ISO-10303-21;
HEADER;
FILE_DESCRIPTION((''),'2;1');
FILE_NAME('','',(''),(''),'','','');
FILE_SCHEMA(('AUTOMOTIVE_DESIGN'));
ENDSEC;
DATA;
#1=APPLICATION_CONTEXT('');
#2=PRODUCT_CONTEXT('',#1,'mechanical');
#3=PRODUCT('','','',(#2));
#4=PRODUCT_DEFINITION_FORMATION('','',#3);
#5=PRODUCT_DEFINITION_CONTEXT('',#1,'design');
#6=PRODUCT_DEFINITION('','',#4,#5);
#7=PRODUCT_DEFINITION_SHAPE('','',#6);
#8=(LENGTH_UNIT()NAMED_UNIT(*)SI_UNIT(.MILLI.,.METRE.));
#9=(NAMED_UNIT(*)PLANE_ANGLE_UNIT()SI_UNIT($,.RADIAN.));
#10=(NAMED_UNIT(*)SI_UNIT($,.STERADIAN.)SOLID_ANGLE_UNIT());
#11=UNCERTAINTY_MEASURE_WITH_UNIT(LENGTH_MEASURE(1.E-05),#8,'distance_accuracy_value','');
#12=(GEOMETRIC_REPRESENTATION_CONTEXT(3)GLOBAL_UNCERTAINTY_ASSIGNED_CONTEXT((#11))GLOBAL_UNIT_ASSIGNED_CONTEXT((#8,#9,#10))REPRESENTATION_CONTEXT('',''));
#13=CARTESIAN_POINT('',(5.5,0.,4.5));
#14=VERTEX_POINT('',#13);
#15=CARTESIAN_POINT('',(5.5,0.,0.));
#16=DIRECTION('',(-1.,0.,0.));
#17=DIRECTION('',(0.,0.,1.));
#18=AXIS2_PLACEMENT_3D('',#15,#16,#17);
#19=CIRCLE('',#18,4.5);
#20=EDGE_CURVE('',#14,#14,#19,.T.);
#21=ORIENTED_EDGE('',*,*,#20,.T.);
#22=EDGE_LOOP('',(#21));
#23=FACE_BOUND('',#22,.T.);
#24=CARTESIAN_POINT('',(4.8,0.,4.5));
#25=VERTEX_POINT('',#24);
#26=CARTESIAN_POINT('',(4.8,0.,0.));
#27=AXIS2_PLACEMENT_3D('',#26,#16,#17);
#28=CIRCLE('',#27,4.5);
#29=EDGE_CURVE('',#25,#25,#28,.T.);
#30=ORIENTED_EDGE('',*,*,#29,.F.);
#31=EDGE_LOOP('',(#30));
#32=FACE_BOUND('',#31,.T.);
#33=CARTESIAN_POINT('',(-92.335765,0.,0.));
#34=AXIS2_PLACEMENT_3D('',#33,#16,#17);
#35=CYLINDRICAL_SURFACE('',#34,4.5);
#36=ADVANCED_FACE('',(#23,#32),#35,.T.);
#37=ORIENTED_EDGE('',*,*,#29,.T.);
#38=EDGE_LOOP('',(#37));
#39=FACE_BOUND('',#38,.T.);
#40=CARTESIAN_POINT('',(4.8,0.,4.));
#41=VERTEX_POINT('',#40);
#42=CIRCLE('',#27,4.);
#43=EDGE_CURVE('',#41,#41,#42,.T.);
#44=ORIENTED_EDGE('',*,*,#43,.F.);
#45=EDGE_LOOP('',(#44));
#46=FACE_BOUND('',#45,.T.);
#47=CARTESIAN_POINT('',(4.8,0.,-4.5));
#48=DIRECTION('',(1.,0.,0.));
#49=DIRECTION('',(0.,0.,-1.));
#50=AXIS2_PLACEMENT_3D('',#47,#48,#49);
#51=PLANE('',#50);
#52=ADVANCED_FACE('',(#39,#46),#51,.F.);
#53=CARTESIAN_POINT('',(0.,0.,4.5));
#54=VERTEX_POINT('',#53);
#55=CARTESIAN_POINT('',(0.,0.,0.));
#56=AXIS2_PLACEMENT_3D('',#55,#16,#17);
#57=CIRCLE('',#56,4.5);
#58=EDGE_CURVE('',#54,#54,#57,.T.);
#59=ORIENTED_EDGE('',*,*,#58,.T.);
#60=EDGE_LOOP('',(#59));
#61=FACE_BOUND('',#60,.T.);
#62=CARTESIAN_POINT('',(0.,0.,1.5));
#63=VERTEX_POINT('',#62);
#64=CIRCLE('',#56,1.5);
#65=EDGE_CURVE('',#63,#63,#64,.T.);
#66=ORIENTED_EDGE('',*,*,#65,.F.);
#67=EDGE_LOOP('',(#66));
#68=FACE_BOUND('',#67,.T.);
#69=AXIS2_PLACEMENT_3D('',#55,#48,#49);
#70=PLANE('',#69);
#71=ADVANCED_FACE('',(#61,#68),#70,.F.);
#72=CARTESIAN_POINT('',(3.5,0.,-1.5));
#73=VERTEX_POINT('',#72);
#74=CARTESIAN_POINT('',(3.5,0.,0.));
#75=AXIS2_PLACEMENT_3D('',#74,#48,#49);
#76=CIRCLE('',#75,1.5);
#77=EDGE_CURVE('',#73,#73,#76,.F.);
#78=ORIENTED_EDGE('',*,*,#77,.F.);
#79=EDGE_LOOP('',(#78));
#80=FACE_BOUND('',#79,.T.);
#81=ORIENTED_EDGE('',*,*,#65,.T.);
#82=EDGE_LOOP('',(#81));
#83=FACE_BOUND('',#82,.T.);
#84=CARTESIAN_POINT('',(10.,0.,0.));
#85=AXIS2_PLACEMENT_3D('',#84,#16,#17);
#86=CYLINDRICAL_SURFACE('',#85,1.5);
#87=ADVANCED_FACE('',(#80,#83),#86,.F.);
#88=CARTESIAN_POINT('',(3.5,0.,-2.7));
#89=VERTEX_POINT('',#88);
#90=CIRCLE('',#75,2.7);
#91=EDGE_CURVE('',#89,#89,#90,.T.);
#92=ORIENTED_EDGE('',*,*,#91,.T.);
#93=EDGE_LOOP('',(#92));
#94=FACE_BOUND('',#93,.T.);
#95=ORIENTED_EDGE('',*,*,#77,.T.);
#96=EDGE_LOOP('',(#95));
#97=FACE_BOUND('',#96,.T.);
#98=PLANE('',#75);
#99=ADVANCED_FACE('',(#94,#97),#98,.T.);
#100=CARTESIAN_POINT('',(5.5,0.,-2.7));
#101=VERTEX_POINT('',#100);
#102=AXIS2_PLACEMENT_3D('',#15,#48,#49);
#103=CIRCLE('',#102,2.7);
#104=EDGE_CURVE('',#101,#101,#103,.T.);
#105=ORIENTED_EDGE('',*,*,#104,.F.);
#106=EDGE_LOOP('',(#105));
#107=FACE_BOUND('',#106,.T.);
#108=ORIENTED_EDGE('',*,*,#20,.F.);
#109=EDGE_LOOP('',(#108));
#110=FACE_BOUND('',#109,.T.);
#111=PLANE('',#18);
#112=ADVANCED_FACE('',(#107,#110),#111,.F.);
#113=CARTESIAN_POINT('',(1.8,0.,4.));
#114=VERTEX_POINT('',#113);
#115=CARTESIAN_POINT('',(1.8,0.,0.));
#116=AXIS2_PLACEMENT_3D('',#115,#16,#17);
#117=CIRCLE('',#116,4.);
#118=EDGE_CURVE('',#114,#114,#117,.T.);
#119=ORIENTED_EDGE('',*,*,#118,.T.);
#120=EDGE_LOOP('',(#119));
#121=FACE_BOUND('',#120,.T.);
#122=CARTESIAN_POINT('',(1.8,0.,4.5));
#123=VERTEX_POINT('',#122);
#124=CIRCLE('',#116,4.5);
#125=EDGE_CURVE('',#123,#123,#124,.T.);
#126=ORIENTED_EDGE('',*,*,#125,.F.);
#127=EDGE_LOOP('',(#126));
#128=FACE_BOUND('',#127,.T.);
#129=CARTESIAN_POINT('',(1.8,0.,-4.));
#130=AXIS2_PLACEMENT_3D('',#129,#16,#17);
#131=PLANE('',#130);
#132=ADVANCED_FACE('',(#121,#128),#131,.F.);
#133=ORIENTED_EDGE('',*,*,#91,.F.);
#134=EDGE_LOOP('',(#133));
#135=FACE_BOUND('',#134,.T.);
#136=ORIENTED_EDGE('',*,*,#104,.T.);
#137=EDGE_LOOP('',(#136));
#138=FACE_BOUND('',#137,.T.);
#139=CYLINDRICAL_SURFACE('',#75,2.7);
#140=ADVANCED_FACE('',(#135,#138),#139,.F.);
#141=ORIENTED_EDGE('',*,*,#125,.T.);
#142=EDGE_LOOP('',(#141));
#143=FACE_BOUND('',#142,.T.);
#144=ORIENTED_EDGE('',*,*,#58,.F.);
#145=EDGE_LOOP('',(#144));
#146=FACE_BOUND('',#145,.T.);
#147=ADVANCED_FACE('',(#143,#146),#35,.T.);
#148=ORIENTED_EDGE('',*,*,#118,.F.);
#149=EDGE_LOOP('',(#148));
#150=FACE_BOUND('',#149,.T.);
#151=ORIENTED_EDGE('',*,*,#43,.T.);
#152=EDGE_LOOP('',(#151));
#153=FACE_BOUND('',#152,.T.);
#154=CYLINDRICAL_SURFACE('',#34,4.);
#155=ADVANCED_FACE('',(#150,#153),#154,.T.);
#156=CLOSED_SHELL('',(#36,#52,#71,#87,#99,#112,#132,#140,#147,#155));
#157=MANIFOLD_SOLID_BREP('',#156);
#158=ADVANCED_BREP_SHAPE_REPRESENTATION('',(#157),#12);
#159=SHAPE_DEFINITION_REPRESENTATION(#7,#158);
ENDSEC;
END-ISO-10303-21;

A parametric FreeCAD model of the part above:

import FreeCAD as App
import Part
import Sketcher
Q = App.Units.Quantity

doc = App.newDocument("Part")
body = doc.addObject("PartDesign::Body", "Body")

# Sketch on XZ plane
sketch1 = doc.addObject("Sketcher::SketchObject", "Sketch")
body.addObject(sketch1)
sketch1.AttachmentSupport = (doc.XZ_Plane, [""])
sketch1.MapMode = "FlatFace"
sketch1.addGeometry([
    Part.LineSegment(App.Vector(0, -4.5, 0), App.Vector(0, 0, 0)),  # 0
    Part.LineSegment(App.Vector(0, 0, 0), App.Vector(5.5, 0, 0)),  # 1
    Part.LineSegment(App.Vector(5.5, 0, 0), App.Vector(5.5, -4.5, 0)),  # 2
    Part.LineSegment(App.Vector(5.5, -4.5, 0), App.Vector(4.8, -4.5, 0)),  # 3
    Part.LineSegment(App.Vector(4.8, -4.5, 0), App.Vector(4.8, -4, 0)),  # 4
    Part.LineSegment(App.Vector(4.8, -4, 0), App.Vector(1.8, -4, 0)),  # 5
    Part.LineSegment(App.Vector(1.8, -4, 0), App.Vector(1.8, -4.5, 0)),  # 6
    Part.LineSegment(App.Vector(1.8, -4.5, 0), App.Vector(0, -4.5, 0)),  # 7
], False)
sketch1.addConstraint([
    Sketcher.Constraint("Coincident", 0, 2, 1, 1),
    Sketcher.Constraint("Coincident", 1, 2, 2, 1),
    Sketcher.Constraint("Coincident", 2, 2, 3, 1),
    Sketcher.Constraint("Coincident", 3, 2, 4, 1),
    Sketcher.Constraint("Coincident", 4, 2, 5, 1),
    Sketcher.Constraint("Coincident", 5, 2, 6, 1),
    Sketcher.Constraint("Coincident", 6, 2, 7, 1),
    Sketcher.Constraint("Coincident", 7, 2, 0, 1),
    Sketcher.Constraint("Vertical", 0),
    Sketcher.Constraint("Horizontal", 1),
    Sketcher.Constraint("Vertical", 2),
    Sketcher.Constraint("Horizontal", 3),
    Sketcher.Constraint("Vertical", 4),
    Sketcher.Constraint("Horizontal", 5),
    Sketcher.Constraint("Vertical", 6),
    Sketcher.Constraint("Horizontal", 7),
    Sketcher.Constraint("Coincident", 0, 2, -1, 1),
    Sketcher.Constraint("Horizontal", 3, 2, 6, 2),
    Sketcher.Constraint("DistanceX", 5, 2, 5, 1, Q("3 mm")),
    Sketcher.Constraint("DistanceX", 1, 1, 1, 2, Q("5.5 mm")),
    Sketcher.Constraint("DistanceX", 3, 2, 3, 1, Q("0.7 mm")),
    Sketcher.Constraint("DistanceY", 0, 1, 0, 2, Q("4.5 mm")),
    Sketcher.Constraint("DistanceY", 4, 1, 4, 2, Q("0.5 mm")),
])
revolution = doc.addObject("PartDesign::Revolution", "Revolution")
body.addObject(revolution)
revolution.Profile = sketch1
revolution.ReferenceAxis = (sketch1, ["H_Axis"])
revolution.Angle = 360

# Sketch on YZ plane
sketch2 = doc.addObject("Sketcher::SketchObject", "Sketch001")
body.addObject(sketch2)
sketch2.AttachmentSupport = (doc.YZ_Plane, [""])
sketch2.MapMode = "FlatFace"
sketch2.addGeometry(Part.Circle(App.Vector(0, 0, 0), App.Vector(0, 0, 1), 1.5), False)
sketch2.addConstraint([
    Sketcher.Constraint("Coincident", 0, 3, -1, 1),
    Sketcher.Constraint("Diameter", 0, Q("3 mm")),
])
pocket1 = doc.addObject("PartDesign::Pocket", "Pocket")
body.addObject(pocket1)
pocket1.Profile = sketch2
pocket1.Length = 10
pocket1.Reversed = True

# Sketch on YZ plane
sketch3 = doc.addObject("Sketcher::SketchObject", "Sketch002")
body.addObject(sketch3)
sketch3.AttachmentSupport = (doc.YZ_Plane, [""])
sketch3.MapMode = "FlatFace"
sketch3.AttachmentOffset = App.Placement(App.Vector(0, 0, 5.5), App.Rotation())
sketch3.addGeometry(Part.Circle(App.Vector(0, 0, 0), App.Vector(0, 0, 1), 2.7), False)
sketch3.addConstraint([
    Sketcher.Constraint("Coincident", 0, 3, -1, 1),
    Sketcher.Constraint("Diameter", 0, Q("5.4 mm")),
])
pocket2 = doc.addObject("PartDesign::Pocket", "Pocket001")
body.addObject(pocket2)
pocket2.Profile = sketch3
pocket2.Length = 2

doc.recompute()
